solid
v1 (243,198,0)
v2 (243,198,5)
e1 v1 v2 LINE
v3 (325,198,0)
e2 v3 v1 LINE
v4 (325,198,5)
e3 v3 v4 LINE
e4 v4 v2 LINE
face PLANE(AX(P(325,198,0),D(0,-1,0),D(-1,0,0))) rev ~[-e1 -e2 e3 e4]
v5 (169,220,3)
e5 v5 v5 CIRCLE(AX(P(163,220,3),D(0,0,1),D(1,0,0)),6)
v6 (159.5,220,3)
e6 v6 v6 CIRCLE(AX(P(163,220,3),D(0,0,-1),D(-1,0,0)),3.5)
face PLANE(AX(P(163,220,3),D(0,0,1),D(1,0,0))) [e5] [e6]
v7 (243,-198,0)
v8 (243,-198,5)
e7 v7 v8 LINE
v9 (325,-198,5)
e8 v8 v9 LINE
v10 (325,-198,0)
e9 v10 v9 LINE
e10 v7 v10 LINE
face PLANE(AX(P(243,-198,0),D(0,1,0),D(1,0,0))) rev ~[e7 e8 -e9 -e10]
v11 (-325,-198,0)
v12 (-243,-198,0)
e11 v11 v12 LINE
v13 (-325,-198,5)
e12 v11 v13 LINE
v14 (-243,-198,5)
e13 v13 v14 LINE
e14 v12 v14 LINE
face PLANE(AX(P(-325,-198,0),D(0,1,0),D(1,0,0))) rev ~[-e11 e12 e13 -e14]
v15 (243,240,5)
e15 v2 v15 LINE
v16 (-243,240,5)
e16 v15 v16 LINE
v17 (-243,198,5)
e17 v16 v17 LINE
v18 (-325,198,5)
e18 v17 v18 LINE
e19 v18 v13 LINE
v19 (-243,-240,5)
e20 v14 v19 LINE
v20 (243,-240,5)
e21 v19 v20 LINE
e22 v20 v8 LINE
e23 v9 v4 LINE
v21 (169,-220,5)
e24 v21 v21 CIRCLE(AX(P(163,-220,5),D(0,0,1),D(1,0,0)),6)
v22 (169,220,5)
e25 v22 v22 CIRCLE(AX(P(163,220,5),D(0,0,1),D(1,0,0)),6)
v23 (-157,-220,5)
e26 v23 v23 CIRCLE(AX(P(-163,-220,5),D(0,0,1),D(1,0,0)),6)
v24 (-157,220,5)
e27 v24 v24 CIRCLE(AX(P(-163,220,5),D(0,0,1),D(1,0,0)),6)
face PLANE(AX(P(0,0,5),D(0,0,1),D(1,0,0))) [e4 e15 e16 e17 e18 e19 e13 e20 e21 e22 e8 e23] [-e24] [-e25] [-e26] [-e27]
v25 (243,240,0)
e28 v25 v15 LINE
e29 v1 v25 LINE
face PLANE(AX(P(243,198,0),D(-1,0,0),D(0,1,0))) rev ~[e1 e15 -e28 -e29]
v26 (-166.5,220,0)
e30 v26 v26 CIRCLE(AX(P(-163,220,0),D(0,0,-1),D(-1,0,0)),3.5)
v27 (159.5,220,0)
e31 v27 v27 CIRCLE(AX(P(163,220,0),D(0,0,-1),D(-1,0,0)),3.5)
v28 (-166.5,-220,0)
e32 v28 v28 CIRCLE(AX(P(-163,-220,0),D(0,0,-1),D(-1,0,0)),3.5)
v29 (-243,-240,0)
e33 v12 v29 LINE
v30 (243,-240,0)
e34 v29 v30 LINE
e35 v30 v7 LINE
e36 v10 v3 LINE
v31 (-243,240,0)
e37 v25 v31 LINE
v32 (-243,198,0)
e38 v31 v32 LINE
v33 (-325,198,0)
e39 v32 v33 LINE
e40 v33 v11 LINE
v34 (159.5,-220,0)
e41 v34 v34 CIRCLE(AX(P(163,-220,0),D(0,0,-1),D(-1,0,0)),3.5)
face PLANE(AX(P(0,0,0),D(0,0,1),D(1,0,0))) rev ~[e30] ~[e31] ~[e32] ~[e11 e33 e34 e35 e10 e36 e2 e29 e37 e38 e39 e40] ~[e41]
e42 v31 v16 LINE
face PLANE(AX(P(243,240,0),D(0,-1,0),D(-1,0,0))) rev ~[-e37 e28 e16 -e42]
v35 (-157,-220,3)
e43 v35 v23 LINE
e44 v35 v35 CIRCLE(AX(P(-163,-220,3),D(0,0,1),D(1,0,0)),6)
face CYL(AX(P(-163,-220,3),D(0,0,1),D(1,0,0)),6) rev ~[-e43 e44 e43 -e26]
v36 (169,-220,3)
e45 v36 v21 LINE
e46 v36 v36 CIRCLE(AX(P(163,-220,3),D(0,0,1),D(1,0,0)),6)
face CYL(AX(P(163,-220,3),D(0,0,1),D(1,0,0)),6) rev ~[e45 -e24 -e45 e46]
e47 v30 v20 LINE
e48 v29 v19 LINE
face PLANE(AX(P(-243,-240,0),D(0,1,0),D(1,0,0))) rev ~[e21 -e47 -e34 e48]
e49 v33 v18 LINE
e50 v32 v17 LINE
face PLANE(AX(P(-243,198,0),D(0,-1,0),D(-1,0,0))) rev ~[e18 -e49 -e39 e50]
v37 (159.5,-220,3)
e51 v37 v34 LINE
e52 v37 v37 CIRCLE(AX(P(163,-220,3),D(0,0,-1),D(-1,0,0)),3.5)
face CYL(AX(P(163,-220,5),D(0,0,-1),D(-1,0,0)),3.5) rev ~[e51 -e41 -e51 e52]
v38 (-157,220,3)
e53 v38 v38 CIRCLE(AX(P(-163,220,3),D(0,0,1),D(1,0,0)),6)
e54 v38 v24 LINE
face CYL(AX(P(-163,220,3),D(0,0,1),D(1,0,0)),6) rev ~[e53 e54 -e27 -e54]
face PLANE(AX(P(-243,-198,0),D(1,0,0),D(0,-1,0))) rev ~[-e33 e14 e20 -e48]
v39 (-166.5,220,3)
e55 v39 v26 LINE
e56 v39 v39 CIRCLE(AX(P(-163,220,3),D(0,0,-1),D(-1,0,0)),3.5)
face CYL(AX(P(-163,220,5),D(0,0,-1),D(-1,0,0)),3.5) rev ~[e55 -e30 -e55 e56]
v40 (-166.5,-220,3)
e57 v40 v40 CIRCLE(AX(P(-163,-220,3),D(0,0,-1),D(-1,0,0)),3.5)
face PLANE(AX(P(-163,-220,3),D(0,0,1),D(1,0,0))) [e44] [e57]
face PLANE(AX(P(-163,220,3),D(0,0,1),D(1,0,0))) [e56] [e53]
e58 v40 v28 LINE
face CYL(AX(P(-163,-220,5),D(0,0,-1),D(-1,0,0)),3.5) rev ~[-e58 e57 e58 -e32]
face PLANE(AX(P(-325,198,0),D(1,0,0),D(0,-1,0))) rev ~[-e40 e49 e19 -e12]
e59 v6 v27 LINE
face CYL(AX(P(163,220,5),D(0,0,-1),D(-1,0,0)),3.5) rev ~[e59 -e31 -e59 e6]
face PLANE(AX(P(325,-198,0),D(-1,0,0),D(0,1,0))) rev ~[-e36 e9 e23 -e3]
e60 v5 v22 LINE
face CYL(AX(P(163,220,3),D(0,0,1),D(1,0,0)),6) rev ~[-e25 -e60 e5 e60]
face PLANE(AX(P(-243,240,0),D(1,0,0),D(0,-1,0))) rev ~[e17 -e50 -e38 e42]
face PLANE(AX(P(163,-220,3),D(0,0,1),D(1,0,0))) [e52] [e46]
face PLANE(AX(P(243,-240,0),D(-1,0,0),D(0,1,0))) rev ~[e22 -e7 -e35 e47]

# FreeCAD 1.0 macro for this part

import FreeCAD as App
import Part
import Sketcher

V = App.Vector
Q = App.Units.Quantity

doc = App.newDocument("Part")
body = doc.addObject("PartDesign::Body", "Body")

# Sketch on XY plane
sketch1 = body.newObject("Sketcher::SketchObject", "Sketch")
sketch1.AttachmentSupport = (doc.getObject("XY_Plane"), [""])
sketch1.MapMode = "FlatFace"
sketch1.addGeometry(Part.LineSegment(V(243, 240, 0), V(-243, 240, 0)), False)
sketch1.addGeometry(Part.LineSegment(V(-243, 240, 0), V(-243, 198, 0)), False)
sketch1.addGeometry(Part.LineSegment(V(-243, 198, 0), V(-325, 198, 0)), False)
sketch1.addGeometry(Part.LineSegment(V(-325, 198, 0), V(-325, -198, 0)), False)
sketch1.addGeometry(Part.LineSegment(V(-325, -198, 0), V(-243, -198, 0)), False)
sketch1.addGeometry(Part.LineSegment(V(-243, -198, 0), V(-243, -240, 0)), False)
sketch1.addGeometry(Part.LineSegment(V(-243, -240, 0), V(243, -240, 0)), False)
sketch1.addGeometry(Part.LineSegment(V(243, -240, 0), V(243, -198, 0)), False)
sketch1.addGeometry(Part.LineSegment(V(243, -198, 0), V(325, -198, 0)), False)
sketch1.addGeometry(Part.LineSegment(V(325, -198, 0), V(325, 198, 0)), False)
sketch1.addGeometry(Part.LineSegment(V(325, 198, 0), V(243, 198, 0)), False)
sketch1.addGeometry(Part.LineSegment(V(243, 198, 0), V(243, 240, 0)), False)
sketch1.addConstraint(Sketcher.Constraint("Coincident", 0, 2, 1, 1))
sketch1.addConstraint(Sketcher.Constraint("Coincident", 1, 2, 2, 1))
sketch1.addConstraint(Sketcher.Constraint("Coincident", 2, 2, 3, 1))
sketch1.addConstraint(Sketcher.Constraint("Coincident", 3, 2, 4, 1))
sketch1.addConstraint(Sketcher.Constraint("Coincident", 4, 2, 5, 1))
sketch1.addConstraint(Sketcher.Constraint("Coincident", 5, 2, 6, 1))
sketch1.addConstraint(Sketcher.Constraint("Coincident", 6, 2, 7, 1))
sketch1.addConstraint(Sketcher.Constraint("Coincident", 7, 2, 8, 1))
sketch1.addConstraint(Sketcher.Constraint("Coincident", 8, 2, 9, 1))
sketch1.addConstraint(Sketcher.Constraint("Coincident", 9, 2, 10, 1))
sketch1.addConstraint(Sketcher.Constraint("Coincident", 10, 2, 11, 1))
sketch1.addConstraint(Sketcher.Constraint("Coincident", 11, 2, 0, 1))
sketch1.addConstraint(Sketcher.Constraint("Horizontal", 0))
sketch1.addConstraint(Sketcher.Constraint("Vertical", 1))
sketch1.addConstraint(Sketcher.Constraint("Horizontal", 2))
sketch1.addConstraint(Sketcher.Constraint("Vertical", 3))
sketch1.addConstraint(Sketcher.Constraint("Horizontal", 4))
sketch1.addConstraint(Sketcher.Constraint("Vertical", 5))
sketch1.addConstraint(Sketcher.Constraint("Horizontal", 6))
sketch1.addConstraint(Sketcher.Constraint("Vertical", 7))
sketch1.addConstraint(Sketcher.Constraint("Horizontal", 8))
sketch1.addConstraint(Sketcher.Constraint("Vertical", 9))
sketch1.addConstraint(Sketcher.Constraint("Horizontal", 10))
sketch1.addConstraint(Sketcher.Constraint("Vertical", 11))
sketch1.addConstraint(Sketcher.Constraint("Symmetric", 0, 2, 6, 2, -1, 1))
sketch1.addConstraint(Sketcher.Constraint("Symmetric", 2, 2, 8, 2, -1, 1))
sketch1.addConstraint(Sketcher.Constraint("Symmetric", 4, 2, 10, 2, -1, 1))
sketch1.addConstraint(Sketcher.Constraint("Symmetric", 4, 2, 7, 2, -2))
sketch1.addConstraint(Sketcher.Constraint("DistanceX", 0, 2, 0, 1, Q("486 mm")))
sketch1.addConstraint(Sketcher.Constraint("DistanceX", 2, 2, 2, 1, Q("82 mm")))
sketch1.addConstraint(Sketcher.Constraint("DistanceY", 1, 2, 1, 1, Q("42 mm")))
sketch1.addConstraint(Sketcher.Constraint("DistanceY", 3, 2, 3, 1, Q("396 mm")))
pad1 = body.newObject("PartDesign::Pad", "Pad")
pad1.Profile = sketch1
pad1.Length = 5

# Sketch on XY plane
sketch2 = body.newObject("Sketcher::SketchObject", "Sketch001")
sketch2.AttachmentSupport = (doc.getObject("XY_Plane"), [""])
sketch2.MapMode = "FlatFace"
sketch2.AttachmentOffset = App.Placement(V(0, 0, 5), App.Rotation())
sketch2.addGeometry(Part.Circle(V(-163, 220, 0), V(0, 0, 1), 3.5), False)
sketch2.addGeometry(Part.Circle(V(-163, -220, 0), V(0, 0, 1), 3.5), False)
sketch2.addGeometry(Part.Circle(V(163, -220, 0), V(0, 0, 1), 3.5), False)
sketch2.addGeometry(Part.Circle(V(163, 220, 0), V(0, 0, 1), 3.5), False)
sketch2.addConstraint(Sketcher.Constraint("Equal", 0, 1))
sketch2.addConstraint(Sketcher.Constraint("Equal", 1, 2))
sketch2.addConstraint(Sketcher.Constraint("Equal", 2, 3))
sketch2.addConstraint(Sketcher.Constraint("Symmetric", 0, 3, 2, 3, -1, 1))
sketch2.addConstraint(Sketcher.Constraint("Symmetric", 1, 3, 3, 3, -1, 1))
sketch2.addConstraint(Sketcher.Constraint("Symmetric", 1, 3, 2, 3, -2))
sketch2.addConstraint(Sketcher.Constraint("Diameter", 0, Q("7 mm")))
sketch2.addConstraint(Sketcher.Constraint("DistanceX", 0, 3, -1, 1, Q("163 mm")))
sketch2.addConstraint(Sketcher.Constraint("DistanceY", -1, 1, 0, 3, Q("220 mm")))
doc.recompute()
hole = body.newObject("PartDesign::Hole", "Hole")
hole.Profile = sketch2
hole.ThreadType = "None"
hole.Diameter = 7
hole.DepthType = "ThroughAll"
hole.HoleCutType = "Counterbore"
hole.HoleCutDiameter = 12
hole.HoleCutDepth = 2

doc.recompute()
